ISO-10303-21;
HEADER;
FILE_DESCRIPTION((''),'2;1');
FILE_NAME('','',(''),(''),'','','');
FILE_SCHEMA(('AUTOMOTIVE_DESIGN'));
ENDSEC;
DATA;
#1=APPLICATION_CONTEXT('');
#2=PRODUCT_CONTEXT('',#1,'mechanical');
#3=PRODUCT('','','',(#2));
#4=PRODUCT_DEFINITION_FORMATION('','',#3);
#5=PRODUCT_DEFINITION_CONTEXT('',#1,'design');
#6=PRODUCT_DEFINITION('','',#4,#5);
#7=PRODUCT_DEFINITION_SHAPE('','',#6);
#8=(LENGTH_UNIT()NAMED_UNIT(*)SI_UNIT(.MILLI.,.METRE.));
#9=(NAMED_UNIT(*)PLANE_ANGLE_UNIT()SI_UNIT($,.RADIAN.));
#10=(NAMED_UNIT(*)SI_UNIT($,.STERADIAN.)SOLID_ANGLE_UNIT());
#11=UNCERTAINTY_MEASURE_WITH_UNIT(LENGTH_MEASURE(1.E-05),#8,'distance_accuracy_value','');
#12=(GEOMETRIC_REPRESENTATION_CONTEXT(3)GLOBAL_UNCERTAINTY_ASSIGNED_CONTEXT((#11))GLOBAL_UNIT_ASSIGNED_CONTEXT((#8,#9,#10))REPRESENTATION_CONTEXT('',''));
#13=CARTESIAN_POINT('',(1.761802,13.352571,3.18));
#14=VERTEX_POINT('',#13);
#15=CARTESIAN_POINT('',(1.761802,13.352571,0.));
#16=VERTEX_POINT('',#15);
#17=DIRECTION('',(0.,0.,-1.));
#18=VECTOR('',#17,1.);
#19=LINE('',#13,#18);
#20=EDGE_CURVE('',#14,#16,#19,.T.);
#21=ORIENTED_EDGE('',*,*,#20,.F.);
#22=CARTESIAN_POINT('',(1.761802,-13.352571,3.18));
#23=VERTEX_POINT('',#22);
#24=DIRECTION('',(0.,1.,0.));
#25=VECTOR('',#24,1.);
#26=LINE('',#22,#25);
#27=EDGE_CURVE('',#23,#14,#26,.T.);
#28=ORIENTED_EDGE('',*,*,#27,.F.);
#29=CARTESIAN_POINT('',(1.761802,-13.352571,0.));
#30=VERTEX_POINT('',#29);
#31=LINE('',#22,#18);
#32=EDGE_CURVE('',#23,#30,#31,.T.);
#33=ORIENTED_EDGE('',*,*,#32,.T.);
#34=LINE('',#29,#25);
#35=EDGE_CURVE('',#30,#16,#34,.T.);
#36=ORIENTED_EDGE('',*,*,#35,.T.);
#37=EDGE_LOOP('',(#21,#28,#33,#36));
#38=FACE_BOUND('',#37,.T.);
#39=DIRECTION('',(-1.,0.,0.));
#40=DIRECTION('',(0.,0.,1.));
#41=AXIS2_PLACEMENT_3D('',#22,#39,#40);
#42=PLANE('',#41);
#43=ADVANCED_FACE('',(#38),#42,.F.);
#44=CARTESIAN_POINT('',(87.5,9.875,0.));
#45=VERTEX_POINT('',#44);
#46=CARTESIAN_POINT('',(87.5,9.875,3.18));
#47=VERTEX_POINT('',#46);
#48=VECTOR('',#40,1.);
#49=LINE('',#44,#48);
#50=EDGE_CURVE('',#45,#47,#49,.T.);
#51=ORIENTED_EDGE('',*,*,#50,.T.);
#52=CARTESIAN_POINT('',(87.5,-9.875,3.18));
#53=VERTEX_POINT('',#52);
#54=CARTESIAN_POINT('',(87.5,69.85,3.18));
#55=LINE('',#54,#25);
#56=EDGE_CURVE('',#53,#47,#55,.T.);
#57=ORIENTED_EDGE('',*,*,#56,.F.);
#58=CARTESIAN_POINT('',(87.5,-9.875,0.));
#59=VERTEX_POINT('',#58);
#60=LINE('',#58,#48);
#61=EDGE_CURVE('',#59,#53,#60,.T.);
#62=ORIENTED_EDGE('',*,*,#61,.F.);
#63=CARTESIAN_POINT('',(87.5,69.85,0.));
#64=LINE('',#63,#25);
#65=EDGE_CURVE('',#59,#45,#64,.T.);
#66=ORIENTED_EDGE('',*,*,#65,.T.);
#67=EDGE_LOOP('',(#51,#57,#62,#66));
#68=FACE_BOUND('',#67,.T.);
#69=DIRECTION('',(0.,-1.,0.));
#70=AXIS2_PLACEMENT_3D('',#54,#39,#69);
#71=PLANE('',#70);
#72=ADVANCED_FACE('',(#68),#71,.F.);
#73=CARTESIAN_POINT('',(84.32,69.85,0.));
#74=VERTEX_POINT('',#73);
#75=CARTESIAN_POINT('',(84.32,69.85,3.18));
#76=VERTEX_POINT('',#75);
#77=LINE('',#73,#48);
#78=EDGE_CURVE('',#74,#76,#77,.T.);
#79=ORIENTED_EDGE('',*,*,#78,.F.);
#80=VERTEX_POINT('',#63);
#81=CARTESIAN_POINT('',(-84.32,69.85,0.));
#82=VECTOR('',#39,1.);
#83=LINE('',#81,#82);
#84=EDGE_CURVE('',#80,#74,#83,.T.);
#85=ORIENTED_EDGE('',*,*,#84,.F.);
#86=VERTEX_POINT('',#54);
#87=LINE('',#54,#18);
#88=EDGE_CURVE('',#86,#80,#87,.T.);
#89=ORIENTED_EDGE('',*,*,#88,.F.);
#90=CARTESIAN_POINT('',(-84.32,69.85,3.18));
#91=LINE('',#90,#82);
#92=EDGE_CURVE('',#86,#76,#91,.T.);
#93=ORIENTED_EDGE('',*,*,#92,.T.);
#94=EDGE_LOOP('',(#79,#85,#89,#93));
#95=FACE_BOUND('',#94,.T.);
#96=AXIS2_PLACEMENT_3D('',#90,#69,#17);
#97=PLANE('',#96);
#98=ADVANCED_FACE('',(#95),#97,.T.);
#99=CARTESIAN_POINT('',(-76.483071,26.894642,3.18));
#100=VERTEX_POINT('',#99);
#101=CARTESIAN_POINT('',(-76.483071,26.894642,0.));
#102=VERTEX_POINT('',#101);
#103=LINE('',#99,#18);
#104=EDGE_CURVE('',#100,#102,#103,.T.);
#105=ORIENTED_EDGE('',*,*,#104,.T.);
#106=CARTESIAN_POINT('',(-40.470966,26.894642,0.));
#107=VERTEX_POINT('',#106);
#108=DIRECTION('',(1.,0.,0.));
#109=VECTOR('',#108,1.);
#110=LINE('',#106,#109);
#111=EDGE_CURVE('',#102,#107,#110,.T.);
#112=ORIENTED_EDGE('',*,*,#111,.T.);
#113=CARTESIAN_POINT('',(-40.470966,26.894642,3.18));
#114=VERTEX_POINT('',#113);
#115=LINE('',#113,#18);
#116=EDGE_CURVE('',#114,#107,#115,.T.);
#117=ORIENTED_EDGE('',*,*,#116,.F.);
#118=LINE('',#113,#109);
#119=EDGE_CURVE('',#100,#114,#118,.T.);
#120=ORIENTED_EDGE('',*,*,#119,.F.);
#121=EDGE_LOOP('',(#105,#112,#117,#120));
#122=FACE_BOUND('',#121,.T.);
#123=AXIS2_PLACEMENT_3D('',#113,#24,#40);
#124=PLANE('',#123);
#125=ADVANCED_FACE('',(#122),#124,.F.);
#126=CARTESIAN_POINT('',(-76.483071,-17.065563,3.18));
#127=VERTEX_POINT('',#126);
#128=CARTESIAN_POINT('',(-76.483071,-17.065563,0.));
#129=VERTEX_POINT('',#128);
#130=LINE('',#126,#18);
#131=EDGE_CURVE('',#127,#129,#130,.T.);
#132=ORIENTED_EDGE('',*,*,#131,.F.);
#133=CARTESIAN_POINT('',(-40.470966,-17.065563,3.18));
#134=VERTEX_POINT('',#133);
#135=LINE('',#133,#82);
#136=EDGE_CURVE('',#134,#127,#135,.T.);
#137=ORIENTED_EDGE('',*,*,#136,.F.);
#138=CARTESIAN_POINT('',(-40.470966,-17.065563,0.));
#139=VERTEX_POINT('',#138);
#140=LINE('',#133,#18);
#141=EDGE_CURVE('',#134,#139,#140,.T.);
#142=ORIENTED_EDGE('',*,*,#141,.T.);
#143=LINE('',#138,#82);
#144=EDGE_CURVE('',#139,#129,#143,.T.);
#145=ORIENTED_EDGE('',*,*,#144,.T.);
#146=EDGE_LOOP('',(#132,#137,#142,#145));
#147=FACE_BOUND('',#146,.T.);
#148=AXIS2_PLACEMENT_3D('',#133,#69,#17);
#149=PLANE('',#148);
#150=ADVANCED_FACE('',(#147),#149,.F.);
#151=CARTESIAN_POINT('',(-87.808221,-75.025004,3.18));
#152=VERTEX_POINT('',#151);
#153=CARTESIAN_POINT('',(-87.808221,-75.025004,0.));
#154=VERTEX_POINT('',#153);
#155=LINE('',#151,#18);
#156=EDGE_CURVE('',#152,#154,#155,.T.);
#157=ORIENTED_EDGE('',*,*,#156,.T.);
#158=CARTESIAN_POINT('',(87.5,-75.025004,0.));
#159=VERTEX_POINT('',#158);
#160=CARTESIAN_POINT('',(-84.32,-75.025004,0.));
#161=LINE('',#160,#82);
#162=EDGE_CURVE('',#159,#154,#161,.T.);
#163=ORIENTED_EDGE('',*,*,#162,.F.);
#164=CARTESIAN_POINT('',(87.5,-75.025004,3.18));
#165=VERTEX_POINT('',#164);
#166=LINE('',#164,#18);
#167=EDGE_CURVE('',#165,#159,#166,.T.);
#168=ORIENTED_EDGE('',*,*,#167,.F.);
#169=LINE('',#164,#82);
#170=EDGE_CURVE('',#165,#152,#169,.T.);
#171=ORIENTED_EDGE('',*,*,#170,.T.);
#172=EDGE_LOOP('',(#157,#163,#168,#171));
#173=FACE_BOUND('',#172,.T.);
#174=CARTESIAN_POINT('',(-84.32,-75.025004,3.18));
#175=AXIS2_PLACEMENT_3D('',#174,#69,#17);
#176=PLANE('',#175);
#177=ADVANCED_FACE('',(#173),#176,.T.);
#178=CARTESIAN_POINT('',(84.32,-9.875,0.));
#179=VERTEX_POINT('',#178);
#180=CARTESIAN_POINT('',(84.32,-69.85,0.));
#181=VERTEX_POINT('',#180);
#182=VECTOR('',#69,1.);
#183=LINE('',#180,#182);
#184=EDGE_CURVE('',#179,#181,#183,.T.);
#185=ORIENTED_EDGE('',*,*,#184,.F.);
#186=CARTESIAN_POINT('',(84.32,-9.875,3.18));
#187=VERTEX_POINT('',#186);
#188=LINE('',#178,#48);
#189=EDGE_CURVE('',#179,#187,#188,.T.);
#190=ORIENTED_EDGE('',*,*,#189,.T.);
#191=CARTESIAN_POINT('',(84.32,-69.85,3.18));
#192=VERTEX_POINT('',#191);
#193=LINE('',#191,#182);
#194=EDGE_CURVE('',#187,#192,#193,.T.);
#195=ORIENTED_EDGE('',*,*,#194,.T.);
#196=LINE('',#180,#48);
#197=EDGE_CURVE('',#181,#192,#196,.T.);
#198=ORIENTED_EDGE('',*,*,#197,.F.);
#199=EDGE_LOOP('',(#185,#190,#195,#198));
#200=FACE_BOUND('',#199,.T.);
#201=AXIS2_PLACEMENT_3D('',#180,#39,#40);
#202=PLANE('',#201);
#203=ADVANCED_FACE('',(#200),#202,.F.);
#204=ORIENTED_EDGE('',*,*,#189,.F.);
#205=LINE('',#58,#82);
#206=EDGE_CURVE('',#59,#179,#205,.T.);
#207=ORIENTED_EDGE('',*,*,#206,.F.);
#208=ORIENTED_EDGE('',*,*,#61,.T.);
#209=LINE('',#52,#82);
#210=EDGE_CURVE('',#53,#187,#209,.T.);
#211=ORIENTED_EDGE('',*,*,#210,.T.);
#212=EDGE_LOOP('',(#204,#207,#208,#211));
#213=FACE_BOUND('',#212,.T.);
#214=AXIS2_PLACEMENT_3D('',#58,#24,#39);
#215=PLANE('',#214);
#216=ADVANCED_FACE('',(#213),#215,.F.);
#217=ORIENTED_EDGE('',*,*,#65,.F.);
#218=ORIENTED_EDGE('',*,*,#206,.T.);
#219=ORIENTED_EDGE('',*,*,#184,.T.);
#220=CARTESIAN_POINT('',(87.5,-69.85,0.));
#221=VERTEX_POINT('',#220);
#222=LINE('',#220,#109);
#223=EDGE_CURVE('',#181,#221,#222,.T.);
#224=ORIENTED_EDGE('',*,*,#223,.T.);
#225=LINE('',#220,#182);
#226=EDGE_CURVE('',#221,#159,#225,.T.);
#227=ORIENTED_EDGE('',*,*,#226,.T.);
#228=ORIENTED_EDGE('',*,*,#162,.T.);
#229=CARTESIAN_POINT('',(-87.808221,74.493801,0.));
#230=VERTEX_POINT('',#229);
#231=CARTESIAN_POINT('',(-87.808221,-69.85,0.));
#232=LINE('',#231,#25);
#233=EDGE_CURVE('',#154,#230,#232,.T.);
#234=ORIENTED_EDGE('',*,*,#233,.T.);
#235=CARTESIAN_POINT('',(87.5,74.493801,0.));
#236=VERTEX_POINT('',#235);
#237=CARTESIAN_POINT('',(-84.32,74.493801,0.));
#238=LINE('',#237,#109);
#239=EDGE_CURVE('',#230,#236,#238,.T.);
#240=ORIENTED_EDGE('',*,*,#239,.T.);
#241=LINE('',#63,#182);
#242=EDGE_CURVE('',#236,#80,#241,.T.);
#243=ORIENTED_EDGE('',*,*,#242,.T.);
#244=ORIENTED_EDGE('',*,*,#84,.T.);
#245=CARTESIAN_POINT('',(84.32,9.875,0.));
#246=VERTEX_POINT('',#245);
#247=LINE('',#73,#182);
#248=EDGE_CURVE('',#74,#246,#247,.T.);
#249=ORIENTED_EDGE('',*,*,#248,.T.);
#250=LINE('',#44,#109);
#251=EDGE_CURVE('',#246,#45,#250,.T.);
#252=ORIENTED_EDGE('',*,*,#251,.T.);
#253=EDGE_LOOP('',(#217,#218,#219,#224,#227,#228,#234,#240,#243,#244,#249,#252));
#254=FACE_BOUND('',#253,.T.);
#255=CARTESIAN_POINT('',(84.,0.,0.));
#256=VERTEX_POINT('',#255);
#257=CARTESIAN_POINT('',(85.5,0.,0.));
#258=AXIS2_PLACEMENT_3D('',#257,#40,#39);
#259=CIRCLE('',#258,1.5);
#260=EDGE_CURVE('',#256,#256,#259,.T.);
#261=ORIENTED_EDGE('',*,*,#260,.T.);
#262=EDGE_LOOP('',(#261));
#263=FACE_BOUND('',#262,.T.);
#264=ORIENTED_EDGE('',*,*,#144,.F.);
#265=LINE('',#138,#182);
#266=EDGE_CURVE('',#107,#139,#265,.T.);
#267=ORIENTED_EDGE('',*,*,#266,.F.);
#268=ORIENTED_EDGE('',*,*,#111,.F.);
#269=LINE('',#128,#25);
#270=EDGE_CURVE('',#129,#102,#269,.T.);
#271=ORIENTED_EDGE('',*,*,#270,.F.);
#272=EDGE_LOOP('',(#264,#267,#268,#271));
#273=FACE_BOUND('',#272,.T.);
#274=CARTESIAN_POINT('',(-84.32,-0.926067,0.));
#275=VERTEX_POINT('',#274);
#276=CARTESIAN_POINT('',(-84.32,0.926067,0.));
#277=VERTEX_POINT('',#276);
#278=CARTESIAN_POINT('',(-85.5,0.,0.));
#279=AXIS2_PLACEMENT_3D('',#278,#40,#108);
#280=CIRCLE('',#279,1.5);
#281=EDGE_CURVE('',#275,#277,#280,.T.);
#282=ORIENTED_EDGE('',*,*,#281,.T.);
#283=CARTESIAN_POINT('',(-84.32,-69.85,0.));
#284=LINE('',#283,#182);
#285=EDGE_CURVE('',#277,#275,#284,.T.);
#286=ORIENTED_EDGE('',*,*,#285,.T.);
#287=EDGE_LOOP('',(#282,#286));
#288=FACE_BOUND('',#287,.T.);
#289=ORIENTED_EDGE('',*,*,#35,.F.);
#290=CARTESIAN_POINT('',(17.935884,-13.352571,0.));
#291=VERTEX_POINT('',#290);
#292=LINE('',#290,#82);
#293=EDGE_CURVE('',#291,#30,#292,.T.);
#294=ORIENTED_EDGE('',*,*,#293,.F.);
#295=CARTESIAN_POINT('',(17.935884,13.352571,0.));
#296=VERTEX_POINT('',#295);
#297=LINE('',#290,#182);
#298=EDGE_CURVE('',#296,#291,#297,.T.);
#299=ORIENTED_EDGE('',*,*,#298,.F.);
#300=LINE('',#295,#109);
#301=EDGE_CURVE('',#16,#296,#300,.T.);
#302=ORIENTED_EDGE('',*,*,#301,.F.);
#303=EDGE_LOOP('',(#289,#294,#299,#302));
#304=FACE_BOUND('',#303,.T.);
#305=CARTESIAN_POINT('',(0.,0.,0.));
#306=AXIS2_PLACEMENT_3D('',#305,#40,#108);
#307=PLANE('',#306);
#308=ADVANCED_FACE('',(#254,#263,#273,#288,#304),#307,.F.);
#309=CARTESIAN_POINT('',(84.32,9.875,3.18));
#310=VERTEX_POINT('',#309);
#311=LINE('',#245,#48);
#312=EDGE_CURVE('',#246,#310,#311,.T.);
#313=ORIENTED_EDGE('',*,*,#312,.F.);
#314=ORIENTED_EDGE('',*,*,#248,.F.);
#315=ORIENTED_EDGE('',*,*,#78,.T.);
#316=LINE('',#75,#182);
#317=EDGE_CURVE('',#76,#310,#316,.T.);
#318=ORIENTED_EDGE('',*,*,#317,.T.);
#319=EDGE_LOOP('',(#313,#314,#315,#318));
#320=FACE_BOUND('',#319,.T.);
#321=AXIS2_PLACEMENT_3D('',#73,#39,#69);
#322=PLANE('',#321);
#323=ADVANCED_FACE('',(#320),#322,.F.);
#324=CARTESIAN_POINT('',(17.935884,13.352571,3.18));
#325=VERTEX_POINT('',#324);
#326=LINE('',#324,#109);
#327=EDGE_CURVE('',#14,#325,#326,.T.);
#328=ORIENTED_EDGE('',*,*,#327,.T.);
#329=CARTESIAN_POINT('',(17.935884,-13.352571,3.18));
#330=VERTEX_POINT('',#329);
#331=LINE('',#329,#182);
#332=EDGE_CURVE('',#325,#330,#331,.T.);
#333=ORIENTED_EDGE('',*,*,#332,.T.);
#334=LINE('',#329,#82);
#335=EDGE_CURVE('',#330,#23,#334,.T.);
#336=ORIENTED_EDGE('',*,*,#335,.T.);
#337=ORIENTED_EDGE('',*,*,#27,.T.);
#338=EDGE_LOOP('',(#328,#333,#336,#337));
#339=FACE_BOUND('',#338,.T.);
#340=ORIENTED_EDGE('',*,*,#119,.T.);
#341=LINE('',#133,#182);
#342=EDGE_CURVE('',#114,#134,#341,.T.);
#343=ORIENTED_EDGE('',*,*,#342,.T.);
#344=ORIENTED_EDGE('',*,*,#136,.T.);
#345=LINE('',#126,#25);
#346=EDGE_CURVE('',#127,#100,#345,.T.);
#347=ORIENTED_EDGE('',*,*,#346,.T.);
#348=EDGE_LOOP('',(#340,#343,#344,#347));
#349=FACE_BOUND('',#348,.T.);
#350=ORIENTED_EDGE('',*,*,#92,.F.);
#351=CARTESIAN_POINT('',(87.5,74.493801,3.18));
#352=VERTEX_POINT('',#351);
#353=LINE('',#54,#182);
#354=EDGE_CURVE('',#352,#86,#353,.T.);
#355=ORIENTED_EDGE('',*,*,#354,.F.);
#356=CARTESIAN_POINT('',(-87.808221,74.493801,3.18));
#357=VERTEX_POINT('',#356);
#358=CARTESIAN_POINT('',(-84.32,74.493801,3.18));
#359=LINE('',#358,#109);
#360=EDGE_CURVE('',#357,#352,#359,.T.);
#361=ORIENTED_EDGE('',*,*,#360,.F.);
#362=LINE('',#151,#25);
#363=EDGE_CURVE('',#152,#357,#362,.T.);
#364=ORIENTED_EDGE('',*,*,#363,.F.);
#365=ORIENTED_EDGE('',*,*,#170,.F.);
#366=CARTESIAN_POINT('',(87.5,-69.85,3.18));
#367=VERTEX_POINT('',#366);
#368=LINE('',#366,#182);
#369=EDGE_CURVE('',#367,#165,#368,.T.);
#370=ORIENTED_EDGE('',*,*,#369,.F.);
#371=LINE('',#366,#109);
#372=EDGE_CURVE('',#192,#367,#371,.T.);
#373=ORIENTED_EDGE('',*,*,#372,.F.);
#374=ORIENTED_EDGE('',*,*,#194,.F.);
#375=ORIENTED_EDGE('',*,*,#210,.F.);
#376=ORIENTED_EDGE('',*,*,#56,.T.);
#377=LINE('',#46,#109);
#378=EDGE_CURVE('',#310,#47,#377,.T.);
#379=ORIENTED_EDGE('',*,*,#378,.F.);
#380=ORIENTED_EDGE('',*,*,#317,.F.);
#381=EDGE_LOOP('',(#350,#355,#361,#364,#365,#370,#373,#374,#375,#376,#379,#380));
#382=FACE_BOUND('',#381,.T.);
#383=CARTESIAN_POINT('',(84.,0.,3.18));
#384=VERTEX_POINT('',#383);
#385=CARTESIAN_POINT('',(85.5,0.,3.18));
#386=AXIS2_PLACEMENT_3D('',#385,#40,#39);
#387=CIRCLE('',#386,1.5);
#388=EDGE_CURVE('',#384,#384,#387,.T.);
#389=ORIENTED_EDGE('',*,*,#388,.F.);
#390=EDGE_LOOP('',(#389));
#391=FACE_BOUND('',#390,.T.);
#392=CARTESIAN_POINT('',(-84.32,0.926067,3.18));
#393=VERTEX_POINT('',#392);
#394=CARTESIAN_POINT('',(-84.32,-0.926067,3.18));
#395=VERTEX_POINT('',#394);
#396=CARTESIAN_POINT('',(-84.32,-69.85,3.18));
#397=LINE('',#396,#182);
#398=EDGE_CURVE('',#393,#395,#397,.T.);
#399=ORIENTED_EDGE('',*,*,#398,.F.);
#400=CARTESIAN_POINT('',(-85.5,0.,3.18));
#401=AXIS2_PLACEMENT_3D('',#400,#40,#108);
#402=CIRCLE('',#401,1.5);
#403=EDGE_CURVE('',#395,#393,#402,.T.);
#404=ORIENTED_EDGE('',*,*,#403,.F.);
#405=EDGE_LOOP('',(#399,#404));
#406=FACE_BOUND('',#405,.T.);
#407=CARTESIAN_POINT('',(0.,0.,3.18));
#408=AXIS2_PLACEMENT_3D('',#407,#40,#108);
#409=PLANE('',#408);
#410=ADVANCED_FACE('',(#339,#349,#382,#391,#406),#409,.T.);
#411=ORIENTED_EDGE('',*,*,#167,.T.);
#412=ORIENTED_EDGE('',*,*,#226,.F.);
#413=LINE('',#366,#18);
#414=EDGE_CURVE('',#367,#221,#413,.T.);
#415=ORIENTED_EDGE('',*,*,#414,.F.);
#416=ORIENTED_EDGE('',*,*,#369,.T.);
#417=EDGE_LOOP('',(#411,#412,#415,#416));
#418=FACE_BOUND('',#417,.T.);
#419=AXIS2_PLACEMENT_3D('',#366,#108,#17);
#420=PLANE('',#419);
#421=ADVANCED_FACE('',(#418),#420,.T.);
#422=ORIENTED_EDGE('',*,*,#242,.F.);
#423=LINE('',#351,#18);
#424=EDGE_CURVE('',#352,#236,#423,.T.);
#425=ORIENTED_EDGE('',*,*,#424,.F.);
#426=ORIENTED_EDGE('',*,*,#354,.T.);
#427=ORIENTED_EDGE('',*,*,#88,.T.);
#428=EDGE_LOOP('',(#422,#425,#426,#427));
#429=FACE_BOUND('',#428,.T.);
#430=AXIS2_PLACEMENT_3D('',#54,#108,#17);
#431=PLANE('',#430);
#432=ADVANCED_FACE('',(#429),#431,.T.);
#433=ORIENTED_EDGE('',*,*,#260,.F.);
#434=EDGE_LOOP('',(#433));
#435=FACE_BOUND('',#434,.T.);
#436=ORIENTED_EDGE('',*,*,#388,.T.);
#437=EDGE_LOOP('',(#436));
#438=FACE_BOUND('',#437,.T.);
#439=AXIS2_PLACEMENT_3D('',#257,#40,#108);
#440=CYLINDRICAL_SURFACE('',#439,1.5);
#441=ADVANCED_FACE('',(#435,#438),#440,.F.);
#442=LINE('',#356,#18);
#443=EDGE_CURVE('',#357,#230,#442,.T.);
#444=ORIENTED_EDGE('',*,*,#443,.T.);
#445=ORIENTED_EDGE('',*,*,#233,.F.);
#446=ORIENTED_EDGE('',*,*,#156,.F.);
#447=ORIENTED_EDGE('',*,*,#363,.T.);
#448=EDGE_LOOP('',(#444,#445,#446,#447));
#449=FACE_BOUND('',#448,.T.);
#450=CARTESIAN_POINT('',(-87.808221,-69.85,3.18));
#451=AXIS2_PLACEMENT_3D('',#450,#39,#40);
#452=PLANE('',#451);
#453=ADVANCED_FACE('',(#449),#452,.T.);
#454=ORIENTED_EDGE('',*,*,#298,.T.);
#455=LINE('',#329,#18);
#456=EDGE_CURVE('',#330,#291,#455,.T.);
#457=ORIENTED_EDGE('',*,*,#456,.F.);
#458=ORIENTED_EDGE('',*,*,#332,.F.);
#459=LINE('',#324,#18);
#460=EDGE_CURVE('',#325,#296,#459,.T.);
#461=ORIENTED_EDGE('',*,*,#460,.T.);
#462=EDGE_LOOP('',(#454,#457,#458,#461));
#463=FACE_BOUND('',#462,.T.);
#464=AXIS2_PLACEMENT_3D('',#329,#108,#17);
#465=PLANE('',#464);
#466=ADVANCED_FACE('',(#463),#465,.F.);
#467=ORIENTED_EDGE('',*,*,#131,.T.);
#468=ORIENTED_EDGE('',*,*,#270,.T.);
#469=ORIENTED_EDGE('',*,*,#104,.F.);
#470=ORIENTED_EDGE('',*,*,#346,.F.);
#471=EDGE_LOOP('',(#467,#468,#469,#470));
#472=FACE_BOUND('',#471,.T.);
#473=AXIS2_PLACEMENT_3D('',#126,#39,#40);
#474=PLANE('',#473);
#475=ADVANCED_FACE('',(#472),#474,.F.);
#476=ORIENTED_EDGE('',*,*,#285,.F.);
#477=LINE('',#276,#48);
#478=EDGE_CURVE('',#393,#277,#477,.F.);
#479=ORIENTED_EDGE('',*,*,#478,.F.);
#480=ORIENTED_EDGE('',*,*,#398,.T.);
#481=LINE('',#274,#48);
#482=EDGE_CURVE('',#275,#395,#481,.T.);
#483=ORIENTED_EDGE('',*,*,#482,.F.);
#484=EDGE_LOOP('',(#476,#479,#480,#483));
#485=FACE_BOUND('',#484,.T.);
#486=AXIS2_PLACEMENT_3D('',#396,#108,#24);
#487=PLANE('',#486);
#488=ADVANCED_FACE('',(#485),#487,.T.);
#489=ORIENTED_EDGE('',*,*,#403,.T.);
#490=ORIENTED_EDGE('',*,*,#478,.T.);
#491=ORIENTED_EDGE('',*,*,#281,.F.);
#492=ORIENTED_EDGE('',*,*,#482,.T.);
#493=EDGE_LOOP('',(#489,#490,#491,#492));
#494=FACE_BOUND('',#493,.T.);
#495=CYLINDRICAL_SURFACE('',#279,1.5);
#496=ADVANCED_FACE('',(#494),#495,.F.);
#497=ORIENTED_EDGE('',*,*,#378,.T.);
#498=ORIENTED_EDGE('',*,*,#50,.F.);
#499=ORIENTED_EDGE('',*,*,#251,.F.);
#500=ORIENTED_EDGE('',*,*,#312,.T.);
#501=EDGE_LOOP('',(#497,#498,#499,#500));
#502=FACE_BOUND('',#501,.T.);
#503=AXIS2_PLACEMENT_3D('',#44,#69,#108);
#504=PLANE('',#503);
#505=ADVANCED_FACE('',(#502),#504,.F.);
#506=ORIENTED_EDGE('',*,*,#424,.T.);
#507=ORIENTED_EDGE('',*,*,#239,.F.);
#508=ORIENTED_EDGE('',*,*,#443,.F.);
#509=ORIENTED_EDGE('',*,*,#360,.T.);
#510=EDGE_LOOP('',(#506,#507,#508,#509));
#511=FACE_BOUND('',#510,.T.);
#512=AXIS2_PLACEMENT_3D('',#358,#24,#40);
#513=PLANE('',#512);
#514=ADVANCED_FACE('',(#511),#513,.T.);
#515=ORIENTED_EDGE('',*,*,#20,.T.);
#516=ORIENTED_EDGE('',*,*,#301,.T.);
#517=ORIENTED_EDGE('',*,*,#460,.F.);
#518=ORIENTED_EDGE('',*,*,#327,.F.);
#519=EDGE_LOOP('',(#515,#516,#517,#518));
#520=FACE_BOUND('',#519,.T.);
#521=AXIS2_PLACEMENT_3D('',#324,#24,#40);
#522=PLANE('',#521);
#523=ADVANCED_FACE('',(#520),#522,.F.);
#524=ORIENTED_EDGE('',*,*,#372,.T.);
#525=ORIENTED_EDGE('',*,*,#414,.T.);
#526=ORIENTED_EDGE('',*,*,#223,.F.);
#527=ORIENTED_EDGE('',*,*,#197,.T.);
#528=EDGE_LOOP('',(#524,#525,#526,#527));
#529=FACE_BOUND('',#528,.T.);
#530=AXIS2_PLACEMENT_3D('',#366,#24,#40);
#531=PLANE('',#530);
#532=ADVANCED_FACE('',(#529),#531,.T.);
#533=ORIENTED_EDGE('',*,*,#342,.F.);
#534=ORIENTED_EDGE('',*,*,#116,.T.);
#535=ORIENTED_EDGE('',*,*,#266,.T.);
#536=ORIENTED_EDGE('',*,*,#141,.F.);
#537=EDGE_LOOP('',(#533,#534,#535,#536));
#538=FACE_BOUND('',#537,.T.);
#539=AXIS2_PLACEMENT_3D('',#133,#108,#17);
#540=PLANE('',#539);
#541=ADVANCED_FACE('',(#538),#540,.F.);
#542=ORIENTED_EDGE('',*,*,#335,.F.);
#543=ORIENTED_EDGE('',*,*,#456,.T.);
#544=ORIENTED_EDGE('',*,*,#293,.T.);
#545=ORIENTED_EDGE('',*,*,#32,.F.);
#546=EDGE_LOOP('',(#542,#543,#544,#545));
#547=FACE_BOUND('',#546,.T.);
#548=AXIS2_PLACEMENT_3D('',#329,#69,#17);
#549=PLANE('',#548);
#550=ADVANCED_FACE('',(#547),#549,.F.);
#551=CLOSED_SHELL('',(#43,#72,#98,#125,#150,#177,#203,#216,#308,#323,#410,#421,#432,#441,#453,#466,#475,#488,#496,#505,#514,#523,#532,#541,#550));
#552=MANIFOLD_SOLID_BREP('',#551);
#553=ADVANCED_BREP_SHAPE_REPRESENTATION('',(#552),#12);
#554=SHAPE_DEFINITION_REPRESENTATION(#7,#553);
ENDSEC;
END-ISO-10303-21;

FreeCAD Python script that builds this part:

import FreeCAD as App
import Part
import Sketcher


def add_polygon(sketch, points):
    """Adds a closed chain of lines whose ends are joined by coincident constraints."""
    first, n = sketch.GeometryCount, len(points)
    for a, b in zip(points, points[1:] + points[:1]):
        sketch.addGeometry(Part.LineSegment(App.Vector(*a, 0), App.Vector(*b, 0)), False)
    for i in range(n):
        sketch.addConstraint(Sketcher.Constraint("Coincident", first + i, 2, first + (i + 1) % n, 1))

doc = App.newDocument("Part")
params = doc.addObject("Spreadsheet::Sheet", "Params")
for row, (alias, value) in enumerate([
    ("sketch1_width", "175 mm"),
    ("sketch1_height", "139.7 mm"),
    ("pad1_length", "3.18 mm"),
    ("sketch2_diameter", "3 mm"),
    ("sketch2_width", "20 mm"),
    ("sketch2_width2", "2 mm"),
    ("sketch2_width3", "3 mm"),
    ("sketch2_height", "4 mm"),
    ("sketch3_diameter", "3.18 mm"),
    ("sketch4_diameter", "3.18 mm"),
    ("pad2_length", "3.18 mm"),
    ("sketch6_width", "3.18 mm"),
    ("sketch6_height", "19.75 mm"),
    ("pad3_length", "3.18 mm"),
    ("sketch8_width", "20 mm"),
    ("pad4_length", "3.18 mm"),
    ("sketch9_width", "3 mm"),
    ("sketch9_width2", "20 mm"),
    ("sketch9_height", "4 mm"),
    ("sketch9_height2", "2.82 mm"),
    ("sketch9_height3", "3.18 mm"),
    ("pad5_length", "3.18 mm"),
    ("sketch13_height", "139.7 mm"),
    ("sketch13_width", "171.82 mm"),
    ("pad6_length", "3.18 mm"),
], start=1):
    params.set(f"A{row}", alias)
    params.set(f"B{row}", "=" + value)
    params.setAlias(f"B{row}", alias)

body = doc.addObject("PartDesign::Body", "Body")

# Sketch on XY plane
sketch1 = body.newObject("Sketcher::SketchObject", "Sketch")
sketch1.AttachmentSupport = (doc.getObject("XY_Plane"), [""])
sketch1.MapMode = "FlatFace"
add_polygon(sketch1, [(-88, 70), (-88, -70), (88, -70), (88, 70)])  # lines 0-3
sketch1.addConstraint(Sketcher.Constraint("Vertical", 0))
sketch1.addConstraint(Sketcher.Constraint("Horizontal", 1))
sketch1.addConstraint(Sketcher.Constraint("Vertical", 2))
sketch1.addConstraint(Sketcher.Constraint("Horizontal", 3))
sketch1.addConstraint(Sketcher.Constraint("Symmetric", 0, 2, 2, 2, -1, 1))
sketch1.addConstraint(Sketcher.Constraint("DistanceX", 1, 1, 1, 2, 175.0))
sketch1.addConstraint(Sketcher.Constraint("DistanceY", 0, 2, 0, 1, 139.7))
sketch1.setExpression("Constraints[9]", "Params.sketch1_width")
sketch1.setExpression("Constraints[10]", "Params.sketch1_height")
pad1 = body.newObject("PartDesign::Pad", "Pad")
pad1.Profile = sketch1
pad1.setExpression("Length", "Params.pad1_length")

# Sketch on XY plane
sketch2 = body.newObject("Sketcher::SketchObject", "Sketch001")
sketch2.AttachmentSupport = (doc.getObject("XY_Plane"), [""])
sketch2.MapMode = "FlatFace"
sketch2.AttachmentOffset = App.Placement(App.Vector(0, 0, 3.18), App.Rotation())
sketch2.addGeometry(Part.Circle(App.Vector(-85.5, 0, 0), App.Vector(0, 0, 1), 1.5), False)  # 0
sketch2.addGeometry(Part.Circle(App.Vector(85.5, 0, 0), App.Vector(0, 0, 1), 1.5), False)  # 1
add_polygon(sketch2, [(10, 69.8), (-10, 69.8), (-10, 66.7), (-1.5, 66.7), (-1.5, 62.7), (-3.5, 62.7), (-3.5, 59.7), (-1.5, 59.7), (-1.5, 56.7), (1.5, 56.7), (1.5, 59.7), (3.5, 59.7), (3.5, 62.7), (1.5, 62.7), (1.5, 66.7), (10, 66.7)])  # lines 2-17
add_polygon(sketch2, [(-10, -66.7), (-10, -69.8), (10, -69.8), (10, -66.7), (1.5, -66.7), (1.5, -62.7), (3.5, -62.7), (3.5, -59.7), (1.5, -59.7), (1.5, -56.7), (-1.5, -56.7), (-1.5, -59.7), (-3.5, -59.7), (-3.5, -62.7), (-1.5, -62.7), (-1.5, -66.7)])  # lines 18-33
add_polygon(sketch2, [(-87.5, 69.8), (-87.5, 9.9), (-84.3, 9.9), (-84.3, 69.8)])  # lines 34-37
add_polygon(sketch2, [(-87.5, -9.9), (-87.5, -69.8), (-84.3, -69.8), (-84.3, -9.9)])  # lines 38-41
add_polygon(sketch2, [(84.3, -9.9), (84.3, -69.8), (87.5, -69.8), (87.5, -9.9)])  # lines 42-45
add_polygon(sketch2, [(84.3, 69.8), (84.3, 9.9), (87.5, 9.9), (87.5, 69.8)])  # lines 46-49
add_polygon(sketch2, [(-20.3, -66.7), (-28.9, -66.7), (-28.9, -62.7), (-26.8, -62.7), (-26.8, -59.7), (-28.9, -59.7), (-28.9, -56.9), (-31.9, -56.9), (-31.9, -59.7), (-33.8, -59.7), (-33.8, -62.7), (-31.9, -62.7), (-31.9, -66.7), (-40.3, -66.7), (-40.3, -69.8), (-20.3, -69.8)])  # lines 50-65
sketch2.addConstraint(Sketcher.Constraint("Horizontal", 2))
sketch2.addConstraint(Sketcher.Constraint("Vertical", 3))
sketch2.addConstraint(Sketcher.Constraint("Horizontal", 4))
sketch2.addConstraint(Sketcher.Constraint("Vertical", 5))
sketch2.addConstraint(Sketcher.Constraint("Horizontal", 6))
sketch2.addConstraint(Sketcher.Constraint("Vertical", 7))
sketch2.addConstraint(Sketcher.Constraint("Horizontal", 8))
sketch2.addConstraint(Sketcher.Constraint("Vertical", 9))
sketch2.addConstraint(Sketcher.Constraint("Horizontal", 10))
sketch2.addConstraint(Sketcher.Constraint("Vertical", 11))
sketch2.addConstraint(Sketcher.Constraint("Horizontal", 12))
sketch2.addConstraint(Sketcher.Constraint("Vertical", 13))
sketch2.addConstraint(Sketcher.Constraint("Horizontal", 14))
sketch2.addConstraint(Sketcher.Constraint("Vertical", 15))
sketch2.addConstraint(Sketcher.Constraint("Horizontal", 16))
sketch2.addConstraint(Sketcher.Constraint("Vertical", 17))
sketch2.addConstraint(Sketcher.Constraint("Vertical", 18))
sketch2.addConstraint(Sketcher.Constraint("Horizontal", 19))
sketch2.addConstraint(Sketcher.Constraint("Vertical", 20))
sketch2.addConstraint(Sketcher.Constraint("Horizontal", 21))
sketch2.addConstraint(Sketcher.Constraint("Vertical", 22))
sketch2.addConstraint(Sketcher.Constraint("Horizontal", 23))
sketch2.addConstraint(Sketcher.Constraint("Vertical", 24))
sketch2.addConstraint(Sketcher.Constraint("Horizontal", 25))
sketch2.addConstraint(Sketcher.Constraint("Vertical", 26))
sketch2.addConstraint(Sketcher.Constraint("Horizontal", 27))
sketch2.addConstraint(Sketcher.Constraint("Vertical", 28))
sketch2.addConstraint(Sketcher.Constraint("Horizontal", 29))
sketch2.addConstraint(Sketcher.Constraint("Vertical", 30))
sketch2.addConstraint(Sketcher.Constraint("Horizontal", 31))
sketch2.addConstraint(Sketcher.Constraint("Vertical", 32))
sketch2.addConstraint(Sketcher.Constraint("Horizontal", 33))
sketch2.addConstraint(Sketcher.Constraint("Vertical", 34))
sketch2.addConstraint(Sketcher.Constraint("Horizontal", 35))
sketch2.addConstraint(Sketcher.Constraint("Vertical", 36))
sketch2.addConstraint(Sketcher.Constraint("Horizontal", 37))
sketch2.addConstraint(Sketcher.Constraint("Vertical", 38))
sketch2.addConstraint(Sketcher.Constraint("Horizontal", 39))
sketch2.addConstraint(Sketcher.Constraint("Vertical", 40))
sketch2.addConstraint(Sketcher.Constraint("Horizontal", 41))
sketch2.addConstraint(Sketcher.Constraint("Vertical", 42))
sketch2.addConstraint(Sketcher.Constraint("Horizontal", 43))
sketch2.addConstraint(Sketcher.Constraint("Vertical", 44))
sketch2.addConstraint(Sketcher.Constraint("Horizontal", 45))
sketch2.addConstraint(Sketcher.Constraint("Vertical", 46))
sketch2.addConstraint(Sketcher.Constraint("Horizontal", 47))
sketch2.addConstraint(Sketcher.Constraint("Vertical", 48))
sketch2.addConstraint(Sketcher.Constraint("Horizontal", 49))
sketch2.addConstraint(Sketcher.Constraint("Horizontal", 50))
sketch2.addConstraint(Sketcher.Constraint("Vertical", 51))
sketch2.addConstraint(Sketcher.Constraint("Horizontal", 52))
sketch2.addConstraint(Sketcher.Constraint("Vertical", 53))
sketch2.addConstraint(Sketcher.Constraint("Horizontal", 54))
sketch2.addConstraint(Sketcher.Constraint("Vertical", 55))
sketch2.addConstraint(Sketcher.Constraint("Horizontal", 56))
sketch2.addConstraint(Sketcher.Constraint("Vertical", 57))
sketch2.addConstraint(Sketcher.Constraint("Horizontal", 58))
sketch2.addConstraint(Sketcher.Constraint("Vertical", 59))
sketch2.addConstraint(Sketcher.Constraint("Horizontal", 60))
sketch2.addConstraint(Sketcher.Constraint("Vertical", 61))
sketch2.addConstraint(Sketcher.Constraint("Horizontal", 62))
sketch2.addConstraint(Sketcher.Constraint("Vertical", 63))
sketch2.addConstraint(Sketcher.Constraint("Horizontal", 64))
sketch2.addConstraint(Sketcher.Constraint("Vertical", 65))
sketch2.addConstraint(Sketcher.Constraint("Equal", 0, 1))
sketch2.addConstraint(Sketcher.Constraint("Symmetric", 0, 3, 1, 3, -1, 1))
sketch2.addConstraint(Sketcher.Constraint("Symmetric", 17, 2, 18, 2, -1, 1))
sketch2.addConstraint(Sketcher.Constraint("Symmetric", 3, 2, 20, 2, -1, 1))
sketch2.addConstraint(Sketcher.Constraint("Symmetric", 5, 2, 22, 2, -1, 1))
sketch2.addConstraint(Sketcher.Constraint("Symmetric", 7, 2, 24, 2, -1, 1))
sketch2.addConstraint(Sketcher.Constraint("Symmetric", 9, 2, 26, 2, -1, 1))
sketch2.addConstraint(Sketcher.Constraint("Symmetric", 11, 2, 28, 2, -1, 1))
sketch2.addConstraint(Sketcher.Constraint("Symmetric", 13, 2, 30, 2, -1, 1))
sketch2.addConstraint(Sketcher.Constraint("Symmetric", 15, 2, 32, 2, -1, 1))
sketch2.addConstraint(Sketcher.Constraint("Symmetric", 36, 2, 42, 2, -1, 1))
sketch2.addConstraint(Sketcher.Constraint("Symmetric", 34, 2, 44, 2, -1, 1))
sketch2.addConstraint(Sketcher.Constraint("Symmetric", 40, 2, 46, 2, -1, 1))
sketch2.addConstraint(Sketcher.Constraint("Symmetric", 38, 2, 48, 2, -1, 1))
sketch2.addConstraint(Sketcher.Constraint("Symmetric", 8, 2, 11, 2, -2))
sketch2.addConstraint(Sketcher.Constraint("Symmetric", 6, 2, 13, 2, -2))
sketch2.addConstraint(Sketcher.Constraint("Symmetric", 4, 2, 15, 2, -2))
sketch2.addConstraint(Sketcher.Constraint("Symmetric", 39, 2, 42, 2, -2))
sketch2.addConstraint(Sketcher.Constraint("Symmetric", 41, 2, 44, 2, -2))
sketch2.addConstraint(Sketcher.Constraint("PointOnObject", 0, 3, -1))
sketch2.addConstraint(Sketcher.Constraint("Horizontal", 17, 2, 36, 2))
sketch2.addConstraint(Sketcher.Constraint("Horizontal", 33, 2, 50, 2))
sketch2.addConstraint(Sketcher.Constraint("Horizontal", 31, 2, 51, 2))
sketch2.addConstraint(Sketcher.Constraint("Horizontal", 29, 2, 53, 2))
sketch2.addConstraint(Sketcher.Constraint("Horizontal", 54, 2, 57, 2))
sketch2.addConstraint(Sketcher.Constraint("Horizontal", 52, 2, 59, 2))
sketch2.addConstraint(Sketcher.Constraint("Horizontal", 50, 2, 61, 2))
sketch2.addConstraint(Sketcher.Constraint("Horizontal", 43, 2, 63, 2))
sketch2.addConstraint(Sketcher.Constraint("Vertical", 5, 2, 8, 2))
sketch2.addConstraint(Sketcher.Constraint("Vertical", 3, 2, 18, 2))
sketch2.addConstraint(Sketcher.Constraint("Vertical", 51, 2, 54, 2))
sketch2.addConstraint(Sketcher.Constraint("Vertical", 57, 2, 60, 2))
sketch2.addConstraint(Sketcher.Constraint("Equal", 27, 56))
sketch2.addConstraint(Sketcher.Constraint("Equal", 19, 64))
sketch2.addConstraint(Sketcher.Constraint("Equal", 49, 3))
sketch2.addConstraint(Sketcher.Constraint("Equal", 56, 7))
sketch2.addConstraint(Sketcher.Constraint("Equal", 7, 9))
sketch2.addConstraint(Sketcher.Constraint("Diameter", 0, 3.0))
sketch2.addConstraint(Sketcher.Constraint("DistanceX", 2, 2, 2, 1, 20.0))
sketch2.addConstraint(Sketcher.Constraint("DistanceX", 6, 2, 6, 1, 2.0))
sketch2.addConstraint(Sketcher.Constraint("DistanceX", 10, 1, 10, 2, 3.0))
sketch2.addConstraint(Sketcher.Constraint("DistanceY", 5, 2, 5, 1, 4.0))
sketch2.addConstraint(Sketcher.Constraint("DistanceX", 35, 1, 35, 2, 3.18))
sketch2.addConstraint(Sketcher.Constraint("DistanceY", 55, 1, 55, 2, 2.82))
sketch2.addConstraint(Sketcher.Constraint("DistanceX", 0, 3, -1, 1, 85.5))
sketch2.addConstraint(Sketcher.Constraint("DistanceX", 34, 2, -1, 1, 87.5))
sketch2.addConstraint(Sketcher.Constraint("DistanceY", 34, 2, 34, 1, 59.975))
sketch2.addConstraint(Sketcher.Constraint("DistanceY", -1, 1, 2, 2, 69.85))
sketch2.addConstraint(Sketcher.Constraint("DistanceX", 50, 2, 50, 1, 8.520843))
sketch2.addConstraint(Sketcher.Constraint("DistanceX", 52, 1, 52, 2, 2.081954))
sketch2.addConstraint(Sketcher.Constraint("DistanceX", 58, 2, 58, 1, 1.918046))
sketch2.addConstraint(Sketcher.Constraint("DistanceX", 52, 2, -1, 1, 26.77295))
sketch2.setExpression("Constraints[165]", "Params.sketch2_diameter")
sketch2.setExpression("Constraints[166]", "Params.sketch2_width")
sketch2.setExpression("Constraints[167]", "Params.sketch2_width2")
sketch2.setExpression("Constraints[168]", "Params.sketch2_width3")
sketch2.setExpression("Constraints[169]", "Params.sketch2_height")
pocket1 = body.newObject("PartDesign::Pocket", "Pocket")
pocket1.Profile = sketch2
pocket1.Type = "ThroughAll"

# Sketch on XY plane
sketch3 = body.newObject("Sketcher::SketchObject", "Sketch002")
sketch3.AttachmentSupport = (doc.getObject("XY_Plane"), [""])
sketch3.MapMode = "FlatFace"
sketch3.addGeometry(Part.Circle(App.Vector(35.7, -48, 0), App.Vector(0, 0, 1), 1.6), False)
sketch3.addGeometry(Part.Circle(App.Vector(35.7, -30.8, 0), App.Vector(0, 0, 1), 1.6), False)
sketch3.addConstraint(Sketcher.Constraint("Equal", 0, 1))
sketch3.addConstraint(Sketcher.Constraint("Vertical", 0, 3, 1, 3))
sketch3.addConstraint(Sketcher.Constraint("Diameter", 0, 3.18))
sketch3.addConstraint(Sketcher.Constraint("DistanceY", 0, 3, 1, 3, 17.18611))
sketch3.addConstraint(Sketcher.Constraint("DistanceX", -1, 1, 0, 3, 35.671277))
sketch3.addConstraint(Sketcher.Constraint("DistanceY", 0, 3, -1, 1, 47.963397))
sketch3.setExpression("Constraints[2]", "Params.sketch3_diameter")
pocket2 = body.newObject("PartDesign::Pocket", "Pocket001")
pocket2.Profile = sketch3
pocket2.Type = "ThroughAll"
pocket2.Reversed = True

# Sketch on XY plane
sketch4 = body.newObject("Sketcher::SketchObject", "Sketch003")
sketch4.AttachmentSupport = (doc.getObject("XY_Plane"), [""])
sketch4.MapMode = "FlatFace"
sketch4.addGeometry(Part.Circle(App.Vector(34.8, 53.8, 0), App.Vector(0, 0, 1), 1.6), False)
sketch4.addGeometry(Part.Circle(App.Vector(34.8, 36.6, 0), App.Vector(0, 0, 1), 1.6), False)
sketch4.addGeometry(Part.Circle(App.Vector(-36.2, 53.8, 0), App.Vector(0, 0, 1), 1.6), False)
sketch4.addGeometry(Part.Circle(App.Vector(-36.2, 36.6, 0), App.Vector(0, 0, 1), 1.6), False)
sketch4.addGeometry(Part.Circle(App.Vector(-36, -30.8, 0), App.Vector(0, 0, 1), 1.6), False)
sketch4.addGeometry(Part.Circle(App.Vector(-36, -48, 0), App.Vector(0, 0, 1), 1.6), False)
sketch4.addGeometry(Part.Circle(App.Vector(35.7, -30.8, 0), App.Vector(0, 0, 1), 1.6), False)
sketch4.addGeometry(Part.Circle(App.Vector(35.7, -48, 0), App.Vector(0, 0, 1), 1.6), False)
sketch4.addConstraint(Sketcher.Constraint("Equal", 0, 1))
sketch4.addConstraint(Sketcher.Constraint("Equal", 1, 2))
sketch4.addConstraint(Sketcher.Constraint("Equal", 2, 3))
sketch4.addConstraint(Sketcher.Constraint("Equal", 3, 4))
sketch4.addConstraint(Sketcher.Constraint("Equal", 4, 5))
sketch4.addConstraint(Sketcher.Constraint("Equal", 5, 6))
sketch4.addConstraint(Sketcher.Constraint("Equal", 6, 7))
sketch4.addConstraint(Sketcher.Constraint("Horizontal", 0, 3, 2, 3))
sketch4.addConstraint(Sketcher.Constraint("Horizontal", 1, 3, 3, 3))
sketch4.addConstraint(Sketcher.Constraint("Horizontal", 4, 3, 6, 3))
sketch4.addConstraint(Sketcher.Constraint("Horizontal", 5, 3, 7, 3))
sketch4.addConstraint(Sketcher.Constraint("Vertical", 0, 3, 1, 3))
sketch4.addConstraint(Sketcher.Constraint("Vertical", 2, 3, 3, 3))
sketch4.addConstraint(Sketcher.Constraint("Vertical", 4, 3, 5, 3))
sketch4.addConstraint(Sketcher.Constraint("Vertical", 6, 3, 7, 3))
sketch4.addConstraint(Sketcher.Constraint("Diameter", 0, 3.18))
sketch4.addConstraint(Sketcher.Constraint("DistanceY", 4, 3, 3, 3, 67.371501))
sketch4.addConstraint(Sketcher.Constraint("DistanceX", 4, 3, -1, 1, 35.983928))
sketch4.addConstraint(Sketcher.Constraint("DistanceY", 1, 3, 0, 3, 17.18611))
sketch4.addConstraint(Sketcher.Constraint("DistanceX", 4, 3, 1, 3, 70.734651))
sketch4.addConstraint(Sketcher.Constraint("DistanceY", 5, 3, 4, 3, 17.18611))
sketch4.addConstraint(Sketcher.Constraint("DistanceX", 3, 3, 6, 3, 71.921061))
sketch4.addConstraint(Sketcher.Constraint("DistanceY", -1, 1, 0, 3, 53.780323))
sketch4.addConstraint(Sketcher.Constraint("DistanceX", 2, 3, -1, 1, 36.249784))
sketch4.setExpression("Constraints[15]", "Params.sketch4_diameter")
pocket3 = body.newObject("PartDesign::Pocket", "Pocket002")
pocket3.Profile = sketch4
pocket3.Type = "ThroughAll"
pocket3.Reversed = True

# Sketch on XY plane
sketch5 = body.newObject("Sketcher::SketchObject", "Sketch004")
sketch5.AttachmentSupport = (doc.getObject("XY_Plane"), [""])
sketch5.MapMode = "FlatFace"
sketch5.AttachmentOffset = App.Placement(App.Vector(0, 0, 3.18), App.Rotation())
add_polygon(sketch5, [(-47, 67), (-47, -56), (45, -56), (45, 67)])  # lines 0-3
sketch5.addConstraint(Sketcher.Constraint("Vertical", 0))
sketch5.addConstraint(Sketcher.Constraint("Horizontal", 1))
sketch5.addConstraint(Sketcher.Constraint("Vertical", 2))
sketch5.addConstraint(Sketcher.Constraint("Horizontal", 3))
sketch5.addConstraint(Sketcher.Constraint("DistanceY", -1, 1, 2, 2, 67.381999))
sketch5.addConstraint(Sketcher.Constraint("DistanceY", 0, 2, 0, 1, 123.656631))
sketch5.addConstraint(Sketcher.Constraint("DistanceX", 1, 1, 1, 2, 91.926225))
sketch5.addConstraint(Sketcher.Constraint("DistanceX", 0, 2, -1, 1, 46.526677))
pad2 = body.newObject("PartDesign::Pad", "Pad001")
pad2.Profile = sketch5
pad2.setExpression("Length", "Params.pad2_length")
pad2.Reversed = True

# Sketch on XY plane
sketch6 = body.newObject("Sketcher::SketchObject", "Sketch005")
sketch6.AttachmentSupport = (doc.getObject("XY_Plane"), [""])
sketch6.MapMode = "FlatFace"
add_polygon(sketch6, [(26.8, 9.9), (26.8, -9.8), (23.6, -9.8), (23.6, 9.9)])  # lines 0-3
add_polygon(sketch6, [(-11.5, 9.9), (-11.5, -9.9), (-14.7, -9.9), (-14.7, 9.9)])  # lines 4-7
sketch6.addConstraint(Sketcher.Constraint("Vertical", 0))
sketch6.addConstraint(Sketcher.Constraint("Horizontal", 1))
sketch6.addConstraint(Sketcher.Constraint("Vertical", 2))
sketch6.addConstraint(Sketcher.Constraint("Horizontal", 3))
sketch6.addConstraint(Sketcher.Constraint("Vertical", 4))
sketch6.addConstraint(Sketcher.Constraint("Horizontal", 5))
sketch6.addConstraint(Sketcher.Constraint("Vertical", 6))
sketch6.addConstraint(Sketcher.Constraint("Horizontal", 7))
sketch6.addConstraint(Sketcher.Constraint("Equal", 3, 5))
sketch6.addConstraint(Sketcher.Constraint("Equal", 2, 4))
sketch6.addConstraint(Sketcher.Constraint("DistanceX", 1, 2, 1, 1, 3.18))
sketch6.addConstraint(Sketcher.Constraint("DistanceY", 0, 2, 0, 1, 19.75))
sketch6.addConstraint(Sketcher.Constraint("DistanceX", -1, 1, 0, 2, 26.8))
sketch6.addConstraint(Sketcher.Constraint("DistanceY", 4, 2, -1, 1, 9.875))
sketch6.addConstraint(Sketcher.Constraint("DistanceY", 0, 2, -1, 1, 9.839006))
sketch6.addConstraint(Sketcher.Constraint("DistanceX", 4, 2, -1, 1, 11.483612))
sketch6.setExpression("Constraints[18]", "Params.sketch6_width")
sketch6.setExpression("Constraints[19]", "Params.sketch6_height")
pocket4 = body.newObject("PartDesign::Pocket", "Pocket003")
pocket4.Profile = sketch6
pocket4.Type = "ThroughAll"
pocket4.Reversed = True

# Sketch on XY plane
sketch7 = body.newObject("Sketcher::SketchObject", "Sketch006")
sketch7.AttachmentSupport = (doc.getObject("XY_Plane"), [""])
sketch7.MapMode = "FlatFace"
add_polygon(sketch7, [(16, -50), (16, -70), (-10, -70), (-10, -50)])  # lines 0-3
sketch7.addConstraint(Sketcher.Constraint("Vertical", 0))
sketch7.addConstraint(Sketcher.Constraint("Horizontal", 1))
sketch7.addConstraint(Sketcher.Constraint("Vertical", 2))
sketch7.addConstraint(Sketcher.Constraint("Horizontal", 3))
sketch7.addConstraint(Sketcher.Constraint("DistanceX", 1, 2, -1, 1, 10.0))
sketch7.addConstraint(Sketcher.Constraint("DistanceY", 0, 2, -1, 1, 69.85))
sketch7.addConstraint(Sketcher.Constraint("DistanceX", 1, 2, 1, 1, 25.560381))
sketch7.addConstraint(Sketcher.Constraint("DistanceY", 0, 2, 0, 1, 19.679282))
pad3 = body.newObject("PartDesign::Pad", "Pad002")
pad3.Profile = sketch7
pad3.setExpression("Length", "Params.pad3_length")

# Sketch on XY plane
sketch8 = body.newObject("Sketcher::SketchObject", "Sketch007")
sketch8.AttachmentSupport = (doc.getObject("XY_Plane"), [""])
sketch8.MapMode = "FlatFace"
add_polygon(sketch8, [(10, 69.9), (10, 67.4), (-10, 67.4), (-10, 69.9)])  # lines 0-3
sketch8.addConstraint(Sketcher.Constraint("Vertical", 0))
sketch8.addConstraint(Sketcher.Constraint("Horizontal", 1))
sketch8.addConstraint(Sketcher.Constraint("Vertical", 2))
sketch8.addConstraint(Sketcher.Constraint("Horizontal", 3))
sketch8.addConstraint(Sketcher.Constraint("DistanceX", 1, 2, 1, 1, 20.0))
sketch8.addConstraint(Sketcher.Constraint("DistanceX", -1, 1, 0, 2, 10.0))
sketch8.addConstraint(Sketcher.Constraint("DistanceY", 0, 2, 0, 1, 2.468001))
sketch8.addConstraint(Sketcher.Constraint("DistanceY", -1, 1, 2, 2, 69.85))
sketch8.setExpression("Constraints[8]", "Params.sketch8_width")
pad4 = body.newObject("PartDesign::Pad", "Pad003")
pad4.Profile = sketch8
pad4.setExpression("Length", "Params.pad4_length")

# Sketch on XY plane
sketch9 = body.newObject("Sketcher::SketchObject", "Sketch008")
sketch9.AttachmentSupport = (doc.getObject("XY_Plane"), [""])
sketch9.MapMode = "FlatFace"
add_polygon(sketch9, [(-20.8, 66.7), (-29.5, 66.7), (-29.5, 62.7), (-27.3, 62.7), (-27.3, 59.7), (-29.5, 59.7), (-29.5, 56.9), (-32.5, 56.9), (-32.5, 59.7), (-34.3, 59.7), (-34.3, 62.7), (-32.5, 62.7), (-32.5, 66.7), (-40.8, 66.7), (-40.8, 69.8), (-20.8, 69.8)])  # lines 0-15
sketch9.addConstraint(Sketcher.Constraint("Horizontal", 0))
sketch9.addConstraint(Sketcher.Constraint("Vertical", 1))
sketch9.addConstraint(Sketcher.Constraint("Horizontal", 2))
sketch9.addConstraint(Sketcher.Constraint("Vertical", 3))
sketch9.addConstraint(Sketcher.Constraint("Horizontal", 4))
sketch9.addConstraint(Sketcher.Constraint("Vertical", 5))
sketch9.addConstraint(Sketcher.Constraint("Horizontal", 6))
sketch9.addConstraint(Sketcher.Constraint("Vertical", 7))
sketch9.addConstraint(Sketcher.Constraint("Horizontal", 8))
sketch9.addConstraint(Sketcher.Constraint("Vertical", 9))
sketch9.addConstraint(Sketcher.Constraint("Horizontal", 10))
sketch9.addConstraint(Sketcher.Constraint("Vertical", 11))
sketch9.addConstraint(Sketcher.Constraint("Horizontal", 12))
sketch9.addConstraint(Sketcher.Constraint("Vertical", 13))
sketch9.addConstraint(Sketcher.Constraint("Horizontal", 14))
sketch9.addConstraint(Sketcher.Constraint("Vertical", 15))
sketch9.addConstraint(Sketcher.Constraint("Horizontal", 4, 2, 7, 2))
sketch9.addConstraint(Sketcher.Constraint("Horizontal", 2, 2, 9, 2))
sketch9.addConstraint(Sketcher.Constraint("Horizontal", 0, 2, 11, 2))
sketch9.addConstraint(Sketcher.Constraint("Vertical", 1, 2, 4, 2))
sketch9.addConstraint(Sketcher.Constraint("Vertical", 7, 2, 10, 2))
sketch9.addConstraint(Sketcher.Constraint("Equal", 6, 3))
sketch9.addConstraint(Sketcher.Constraint("DistanceX", 6, 2, 6, 1, 3.0))
sketch9.addConstraint(Sketcher.Constraint("DistanceX", 14, 1, 14, 2, 20.0))
sketch9.addConstraint(Sketcher.Constraint("DistanceY", 1, 2, 1, 1, 4.0))
sketch9.addConstraint(Sketcher.Constraint("DistanceY", 5, 2, 5, 1, 2.82))
sketch9.addConstraint(Sketcher.Constraint("DistanceY", 13, 1, 13, 2, 3.18))
sketch9.addConstraint(Sketcher.Constraint("DistanceX", 12, 2, 9, 2, 6.5))
sketch9.addConstraint(Sketcher.Constraint("DistanceX", 2, 2, 14, 2, 6.5))
sketch9.addConstraint(Sketcher.Constraint("DistanceY", -1, 1, 0, 2, 66.67))
sketch9.addConstraint(Sketcher.Constraint("DistanceX", 0, 2, 0, 1, 8.68591))
sketch9.addConstraint(Sketcher.Constraint("DistanceX", 2, 2, -1, 1, 27.293148))
sketch9.setExpression("Constraints[38]", "Params.sketch9_width")
sketch9.setExpression("Constraints[39]", "Params.sketch9_width2")
sketch9.setExpression("Constraints[40]", "Params.sketch9_height")
sketch9.setExpression("Constraints[41]", "Params.sketch9_height2")
sketch9.setExpression("Constraints[42]", "Params.sketch9_height3")
pocket5 = body.newObject("PartDesign::Pocket", "Pocket004")
pocket5.Profile = sketch9
pocket5.Type = "ThroughAll"
pocket5.Reversed = True

# Sketch on XY plane
sketch10 = body.newObject("Sketcher::SketchObject", "Sketch009")
sketch10.AttachmentSupport = (doc.getObject("XY_Plane"), [""])
sketch10.MapMode = "FlatFace"
add_polygon(sketch10, [(-40, 27), (-40, -17), (-76, -17), (-76, 27)])  # lines 0-3
sketch10.addConstraint(Sketcher.Constraint("Vertical", 0))
sketch10.addConstraint(Sketcher.Constraint("Horizontal", 1))
sketch10.addConstraint(Sketcher.Constraint("Vertical", 2))
sketch10.addConstraint(Sketcher.Constraint("Horizontal", 3))
sketch10.addConstraint(Sketcher.Constraint("DistanceX", 1, 2, 1, 1, 36.012104))
sketch10.addConstraint(Sketcher.Constraint("DistanceY", 0, 2, 0, 1, 43.960206))
sketch10.addConstraint(Sketcher.Constraint("DistanceX", 1, 2, -1, 1, 76.483071))
sketch10.addConstraint(Sketcher.Constraint("DistanceY", 0, 2, -1, 1, 17.065563))
pocket6 = body.newObject("PartDesign::Pocket", "Pocket005")
pocket6.Profile = sketch10
pocket6.Type = "ThroughAll"
pocket6.Reversed = True

# Sketch on XY plane
sketch11 = body.newObject("Sketcher::SketchObject", "Sketch010")
sketch11.AttachmentSupport = (doc.getObject("XY_Plane"), [""])
sketch11.MapMode = "FlatFace"
add_polygon(sketch11, [(18, 13), (18, -13), (2, -13), (2, 13)])  # lines 0-3
sketch11.addConstraint(Sketcher.Constraint("Vertical", 0))
sketch11.addConstraint(Sketcher.Constraint("Horizontal", 1))
sketch11.addConstraint(Sketcher.Constraint("Vertical", 2))
sketch11.addConstraint(Sketcher.Constraint("Horizontal", 3))
sketch11.addConstraint(Sketcher.Constraint("DistanceY", 0, 2, 0, 1, 26.705142))
sketch11.addConstraint(Sketcher.Constraint("DistanceX", 1, 2, 1, 1, 16.174082))
sketch11.addConstraint(Sketcher.Constraint("DistanceY", 0, 2, -1, 1, 13.352571))
sketch11.addConstraint(Sketcher.Constraint("DistanceX", -1, 1, 0, 2, 17.935884))
pocket7 = body.newObject("PartDesign::Pocket", "Pocket006")
pocket7.Profile = sketch11
pocket7.Type = "ThroughAll"
pocket7.Reversed = True

# Sketch on XY plane
sketch12 = body.newObject("Sketcher::SketchObject", "Sketch011")
sketch12.AttachmentSupport = (doc.getObject("XY_Plane"), [""])
sketch12.MapMode = "FlatFace"
add_polygon(sketch12, [(41, 51), (41, -70), (22, -70), (22, 51)])  # lines 0-3
add_polygon(sketch12, [(-7, 16), (-7, -20), (-18, -20), (-18, 16)])  # lines 4-7
add_polygon(sketch12, [(-18, -56), (-18, -70), (-46, -70), (-46, -56)])  # lines 8-11
add_polygon(sketch12, [(-21, 70), (-21, 53), (-43, 53), (-43, 70)])  # lines 12-15
sketch12.addConstraint(Sketcher.Constraint("Vertical", 0))
sketch12.addConstraint(Sketcher.Constraint("Horizontal", 1))
sketch12.addConstraint(Sketcher.Constraint("Vertical", 2))
sketch12.addConstraint(Sketcher.Constraint("Horizontal", 3))
sketch12.addConstraint(Sketcher.Constraint("Vertical", 4))
sketch12.addConstraint(Sketcher.Constraint("Horizontal", 5))
sketch12.addConstraint(Sketcher.Constraint("Vertical", 6))
sketch12.addConstraint(Sketcher.Constraint("Horizontal", 7))
sketch12.addConstraint(Sketcher.Constraint("Vertical", 8))
sketch12.addConstraint(Sketcher.Constraint("Horizontal", 9))
sketch12.addConstraint(Sketcher.Constraint("Vertical", 10))
sketch12.addConstraint(Sketcher.Constraint("Horizontal", 11))
sketch12.addConstraint(Sketcher.Constraint("Vertical", 12))
sketch12.addConstraint(Sketcher.Constraint("Horizontal", 13))
sketch12.addConstraint(Sketcher.Constraint("Vertical", 14))
sketch12.addConstraint(Sketcher.Constraint("Horizontal", 15))
sketch12.addConstraint(Sketcher.Constraint("Horizontal", 1, 2, 8, 2))
sketch12.addConstraint(Sketcher.Constraint("Vertical", 6, 2, 8, 2))
sketch12.addConstraint(Sketcher.Constraint("DistanceY", 0, 2, -1, 1, 69.85))
sketch12.addConstraint(Sketcher.Constraint("DistanceY", -1, 1, 14, 2, 69.85))
sketch12.addConstraint(Sketcher.Constraint("DistanceX", 9, 2, 9, 1, 28.428801))
sketch12.addConstraint(Sketcher.Constraint("DistanceX", 1, 2, 1, 1, 18.884338))
sketch12.addConstraint(Sketcher.Constraint("DistanceY", 0, 2, 0, 1, 121.056151))
sketch12.addConstraint(Sketcher.Constraint("DistanceY", 8, 2, 8, 1, 14.001352))
sketch12.addConstraint(Sketcher.Constraint("DistanceX", 4, 2, -1, 1, 6.684699))
sketch12.addConstraint(Sketcher.Constraint("DistanceX", 13, 2, 6, 2, 25.828299))
sketch12.addConstraint(Sketcher.Constraint("DistanceX", 5, 2, 5, 1, 10.857088))
sketch12.addConstraint(Sketcher.Constraint("DistanceX", 13, 2, 13, 1, 22.576938))
sketch12.addConstraint(Sketcher.Constraint("DistanceY", 4, 2, 4, 1, 35.437593))
sketch12.addConstraint(Sketcher.Constraint("DistanceY", 12, 2, 12, 1, 16.729538))
sketch12.addConstraint(Sketcher.Constraint("DistanceX", 5, 2, 0, 2, 58.843551))
sketch12.addConstraint(Sketcher.Constraint("DistanceY", 5, 2, 12, 2, 72.754448))
pad5 = body.newObject("PartDesign::Pad", "Pad004")
pad5.Profile = sketch12
pad5.setExpression("Length", "Params.pad5_length")

# Sketch on XY plane
sketch13 = body.newObject("Sketcher::SketchObject", "Sketch012")
sketch13.AttachmentSupport = (doc.getObject("XY_Plane"), [""])
sketch13.MapMode = "FlatFace"
add_polygon(sketch13, [(-84.3, -69.8), (87.5, -69.8), (87.5, -75), (-87.8, -75), (-87.8, 74.5), (87.5, 74.5), (87.5, 69.8), (-84.3, 69.8)])  # lines 0-7
sketch13.addConstraint(Sketcher.Constraint("Horizontal", 0))
sketch13.addConstraint(Sketcher.Constraint("Vertical", 1))
sketch13.addConstraint(Sketcher.Constraint("Horizontal", 2))
sketch13.addConstraint(Sketcher.Constraint("Vertical", 3))
sketch13.addConstraint(Sketcher.Constraint("Horizontal", 4))
sketch13.addConstraint(Sketcher.Constraint("Vertical", 5))
sketch13.addConstraint(Sketcher.Constraint("Horizontal", 6))
sketch13.addConstraint(Sketcher.Constraint("Vertical", 7))
sketch13.addConstraint(Sketcher.Constraint("Symmetric", 0, 2, 5, 2, -1))
sketch13.addConstraint(Sketcher.Constraint("DistanceY", 7, 2, 7, 1, 139.7))
sketch13.addConstraint(Sketcher.Constraint("DistanceX", 0, 1, 0, 2, 171.82))
sketch13.addConstraint(Sketcher.Constraint("DistanceX", -1, 1, 0, 2, 87.5))
sketch13.addConstraint(Sketcher.Constraint("DistanceY", 5, 2, 5, 1, 4.643801))
sketch13.addConstraint(Sketcher.Constraint("DistanceX", 2, 2, 2, 1, 175.308221))
sketch13.addConstraint(Sketcher.Constraint("DistanceY", 1, 2, 1, 1, 5.175004))
sketch13.setExpression("Constraints[17]", "Params.sketch13_height")
sketch13.setExpression("Constraints[18]", "Params.sketch13_width")
pad6 = body.newObject("PartDesign::Pad", "Pad005")
pad6.Profile = sketch13
pad6.setExpression("Length", "Params.pad6_length")

doc.recompute()
